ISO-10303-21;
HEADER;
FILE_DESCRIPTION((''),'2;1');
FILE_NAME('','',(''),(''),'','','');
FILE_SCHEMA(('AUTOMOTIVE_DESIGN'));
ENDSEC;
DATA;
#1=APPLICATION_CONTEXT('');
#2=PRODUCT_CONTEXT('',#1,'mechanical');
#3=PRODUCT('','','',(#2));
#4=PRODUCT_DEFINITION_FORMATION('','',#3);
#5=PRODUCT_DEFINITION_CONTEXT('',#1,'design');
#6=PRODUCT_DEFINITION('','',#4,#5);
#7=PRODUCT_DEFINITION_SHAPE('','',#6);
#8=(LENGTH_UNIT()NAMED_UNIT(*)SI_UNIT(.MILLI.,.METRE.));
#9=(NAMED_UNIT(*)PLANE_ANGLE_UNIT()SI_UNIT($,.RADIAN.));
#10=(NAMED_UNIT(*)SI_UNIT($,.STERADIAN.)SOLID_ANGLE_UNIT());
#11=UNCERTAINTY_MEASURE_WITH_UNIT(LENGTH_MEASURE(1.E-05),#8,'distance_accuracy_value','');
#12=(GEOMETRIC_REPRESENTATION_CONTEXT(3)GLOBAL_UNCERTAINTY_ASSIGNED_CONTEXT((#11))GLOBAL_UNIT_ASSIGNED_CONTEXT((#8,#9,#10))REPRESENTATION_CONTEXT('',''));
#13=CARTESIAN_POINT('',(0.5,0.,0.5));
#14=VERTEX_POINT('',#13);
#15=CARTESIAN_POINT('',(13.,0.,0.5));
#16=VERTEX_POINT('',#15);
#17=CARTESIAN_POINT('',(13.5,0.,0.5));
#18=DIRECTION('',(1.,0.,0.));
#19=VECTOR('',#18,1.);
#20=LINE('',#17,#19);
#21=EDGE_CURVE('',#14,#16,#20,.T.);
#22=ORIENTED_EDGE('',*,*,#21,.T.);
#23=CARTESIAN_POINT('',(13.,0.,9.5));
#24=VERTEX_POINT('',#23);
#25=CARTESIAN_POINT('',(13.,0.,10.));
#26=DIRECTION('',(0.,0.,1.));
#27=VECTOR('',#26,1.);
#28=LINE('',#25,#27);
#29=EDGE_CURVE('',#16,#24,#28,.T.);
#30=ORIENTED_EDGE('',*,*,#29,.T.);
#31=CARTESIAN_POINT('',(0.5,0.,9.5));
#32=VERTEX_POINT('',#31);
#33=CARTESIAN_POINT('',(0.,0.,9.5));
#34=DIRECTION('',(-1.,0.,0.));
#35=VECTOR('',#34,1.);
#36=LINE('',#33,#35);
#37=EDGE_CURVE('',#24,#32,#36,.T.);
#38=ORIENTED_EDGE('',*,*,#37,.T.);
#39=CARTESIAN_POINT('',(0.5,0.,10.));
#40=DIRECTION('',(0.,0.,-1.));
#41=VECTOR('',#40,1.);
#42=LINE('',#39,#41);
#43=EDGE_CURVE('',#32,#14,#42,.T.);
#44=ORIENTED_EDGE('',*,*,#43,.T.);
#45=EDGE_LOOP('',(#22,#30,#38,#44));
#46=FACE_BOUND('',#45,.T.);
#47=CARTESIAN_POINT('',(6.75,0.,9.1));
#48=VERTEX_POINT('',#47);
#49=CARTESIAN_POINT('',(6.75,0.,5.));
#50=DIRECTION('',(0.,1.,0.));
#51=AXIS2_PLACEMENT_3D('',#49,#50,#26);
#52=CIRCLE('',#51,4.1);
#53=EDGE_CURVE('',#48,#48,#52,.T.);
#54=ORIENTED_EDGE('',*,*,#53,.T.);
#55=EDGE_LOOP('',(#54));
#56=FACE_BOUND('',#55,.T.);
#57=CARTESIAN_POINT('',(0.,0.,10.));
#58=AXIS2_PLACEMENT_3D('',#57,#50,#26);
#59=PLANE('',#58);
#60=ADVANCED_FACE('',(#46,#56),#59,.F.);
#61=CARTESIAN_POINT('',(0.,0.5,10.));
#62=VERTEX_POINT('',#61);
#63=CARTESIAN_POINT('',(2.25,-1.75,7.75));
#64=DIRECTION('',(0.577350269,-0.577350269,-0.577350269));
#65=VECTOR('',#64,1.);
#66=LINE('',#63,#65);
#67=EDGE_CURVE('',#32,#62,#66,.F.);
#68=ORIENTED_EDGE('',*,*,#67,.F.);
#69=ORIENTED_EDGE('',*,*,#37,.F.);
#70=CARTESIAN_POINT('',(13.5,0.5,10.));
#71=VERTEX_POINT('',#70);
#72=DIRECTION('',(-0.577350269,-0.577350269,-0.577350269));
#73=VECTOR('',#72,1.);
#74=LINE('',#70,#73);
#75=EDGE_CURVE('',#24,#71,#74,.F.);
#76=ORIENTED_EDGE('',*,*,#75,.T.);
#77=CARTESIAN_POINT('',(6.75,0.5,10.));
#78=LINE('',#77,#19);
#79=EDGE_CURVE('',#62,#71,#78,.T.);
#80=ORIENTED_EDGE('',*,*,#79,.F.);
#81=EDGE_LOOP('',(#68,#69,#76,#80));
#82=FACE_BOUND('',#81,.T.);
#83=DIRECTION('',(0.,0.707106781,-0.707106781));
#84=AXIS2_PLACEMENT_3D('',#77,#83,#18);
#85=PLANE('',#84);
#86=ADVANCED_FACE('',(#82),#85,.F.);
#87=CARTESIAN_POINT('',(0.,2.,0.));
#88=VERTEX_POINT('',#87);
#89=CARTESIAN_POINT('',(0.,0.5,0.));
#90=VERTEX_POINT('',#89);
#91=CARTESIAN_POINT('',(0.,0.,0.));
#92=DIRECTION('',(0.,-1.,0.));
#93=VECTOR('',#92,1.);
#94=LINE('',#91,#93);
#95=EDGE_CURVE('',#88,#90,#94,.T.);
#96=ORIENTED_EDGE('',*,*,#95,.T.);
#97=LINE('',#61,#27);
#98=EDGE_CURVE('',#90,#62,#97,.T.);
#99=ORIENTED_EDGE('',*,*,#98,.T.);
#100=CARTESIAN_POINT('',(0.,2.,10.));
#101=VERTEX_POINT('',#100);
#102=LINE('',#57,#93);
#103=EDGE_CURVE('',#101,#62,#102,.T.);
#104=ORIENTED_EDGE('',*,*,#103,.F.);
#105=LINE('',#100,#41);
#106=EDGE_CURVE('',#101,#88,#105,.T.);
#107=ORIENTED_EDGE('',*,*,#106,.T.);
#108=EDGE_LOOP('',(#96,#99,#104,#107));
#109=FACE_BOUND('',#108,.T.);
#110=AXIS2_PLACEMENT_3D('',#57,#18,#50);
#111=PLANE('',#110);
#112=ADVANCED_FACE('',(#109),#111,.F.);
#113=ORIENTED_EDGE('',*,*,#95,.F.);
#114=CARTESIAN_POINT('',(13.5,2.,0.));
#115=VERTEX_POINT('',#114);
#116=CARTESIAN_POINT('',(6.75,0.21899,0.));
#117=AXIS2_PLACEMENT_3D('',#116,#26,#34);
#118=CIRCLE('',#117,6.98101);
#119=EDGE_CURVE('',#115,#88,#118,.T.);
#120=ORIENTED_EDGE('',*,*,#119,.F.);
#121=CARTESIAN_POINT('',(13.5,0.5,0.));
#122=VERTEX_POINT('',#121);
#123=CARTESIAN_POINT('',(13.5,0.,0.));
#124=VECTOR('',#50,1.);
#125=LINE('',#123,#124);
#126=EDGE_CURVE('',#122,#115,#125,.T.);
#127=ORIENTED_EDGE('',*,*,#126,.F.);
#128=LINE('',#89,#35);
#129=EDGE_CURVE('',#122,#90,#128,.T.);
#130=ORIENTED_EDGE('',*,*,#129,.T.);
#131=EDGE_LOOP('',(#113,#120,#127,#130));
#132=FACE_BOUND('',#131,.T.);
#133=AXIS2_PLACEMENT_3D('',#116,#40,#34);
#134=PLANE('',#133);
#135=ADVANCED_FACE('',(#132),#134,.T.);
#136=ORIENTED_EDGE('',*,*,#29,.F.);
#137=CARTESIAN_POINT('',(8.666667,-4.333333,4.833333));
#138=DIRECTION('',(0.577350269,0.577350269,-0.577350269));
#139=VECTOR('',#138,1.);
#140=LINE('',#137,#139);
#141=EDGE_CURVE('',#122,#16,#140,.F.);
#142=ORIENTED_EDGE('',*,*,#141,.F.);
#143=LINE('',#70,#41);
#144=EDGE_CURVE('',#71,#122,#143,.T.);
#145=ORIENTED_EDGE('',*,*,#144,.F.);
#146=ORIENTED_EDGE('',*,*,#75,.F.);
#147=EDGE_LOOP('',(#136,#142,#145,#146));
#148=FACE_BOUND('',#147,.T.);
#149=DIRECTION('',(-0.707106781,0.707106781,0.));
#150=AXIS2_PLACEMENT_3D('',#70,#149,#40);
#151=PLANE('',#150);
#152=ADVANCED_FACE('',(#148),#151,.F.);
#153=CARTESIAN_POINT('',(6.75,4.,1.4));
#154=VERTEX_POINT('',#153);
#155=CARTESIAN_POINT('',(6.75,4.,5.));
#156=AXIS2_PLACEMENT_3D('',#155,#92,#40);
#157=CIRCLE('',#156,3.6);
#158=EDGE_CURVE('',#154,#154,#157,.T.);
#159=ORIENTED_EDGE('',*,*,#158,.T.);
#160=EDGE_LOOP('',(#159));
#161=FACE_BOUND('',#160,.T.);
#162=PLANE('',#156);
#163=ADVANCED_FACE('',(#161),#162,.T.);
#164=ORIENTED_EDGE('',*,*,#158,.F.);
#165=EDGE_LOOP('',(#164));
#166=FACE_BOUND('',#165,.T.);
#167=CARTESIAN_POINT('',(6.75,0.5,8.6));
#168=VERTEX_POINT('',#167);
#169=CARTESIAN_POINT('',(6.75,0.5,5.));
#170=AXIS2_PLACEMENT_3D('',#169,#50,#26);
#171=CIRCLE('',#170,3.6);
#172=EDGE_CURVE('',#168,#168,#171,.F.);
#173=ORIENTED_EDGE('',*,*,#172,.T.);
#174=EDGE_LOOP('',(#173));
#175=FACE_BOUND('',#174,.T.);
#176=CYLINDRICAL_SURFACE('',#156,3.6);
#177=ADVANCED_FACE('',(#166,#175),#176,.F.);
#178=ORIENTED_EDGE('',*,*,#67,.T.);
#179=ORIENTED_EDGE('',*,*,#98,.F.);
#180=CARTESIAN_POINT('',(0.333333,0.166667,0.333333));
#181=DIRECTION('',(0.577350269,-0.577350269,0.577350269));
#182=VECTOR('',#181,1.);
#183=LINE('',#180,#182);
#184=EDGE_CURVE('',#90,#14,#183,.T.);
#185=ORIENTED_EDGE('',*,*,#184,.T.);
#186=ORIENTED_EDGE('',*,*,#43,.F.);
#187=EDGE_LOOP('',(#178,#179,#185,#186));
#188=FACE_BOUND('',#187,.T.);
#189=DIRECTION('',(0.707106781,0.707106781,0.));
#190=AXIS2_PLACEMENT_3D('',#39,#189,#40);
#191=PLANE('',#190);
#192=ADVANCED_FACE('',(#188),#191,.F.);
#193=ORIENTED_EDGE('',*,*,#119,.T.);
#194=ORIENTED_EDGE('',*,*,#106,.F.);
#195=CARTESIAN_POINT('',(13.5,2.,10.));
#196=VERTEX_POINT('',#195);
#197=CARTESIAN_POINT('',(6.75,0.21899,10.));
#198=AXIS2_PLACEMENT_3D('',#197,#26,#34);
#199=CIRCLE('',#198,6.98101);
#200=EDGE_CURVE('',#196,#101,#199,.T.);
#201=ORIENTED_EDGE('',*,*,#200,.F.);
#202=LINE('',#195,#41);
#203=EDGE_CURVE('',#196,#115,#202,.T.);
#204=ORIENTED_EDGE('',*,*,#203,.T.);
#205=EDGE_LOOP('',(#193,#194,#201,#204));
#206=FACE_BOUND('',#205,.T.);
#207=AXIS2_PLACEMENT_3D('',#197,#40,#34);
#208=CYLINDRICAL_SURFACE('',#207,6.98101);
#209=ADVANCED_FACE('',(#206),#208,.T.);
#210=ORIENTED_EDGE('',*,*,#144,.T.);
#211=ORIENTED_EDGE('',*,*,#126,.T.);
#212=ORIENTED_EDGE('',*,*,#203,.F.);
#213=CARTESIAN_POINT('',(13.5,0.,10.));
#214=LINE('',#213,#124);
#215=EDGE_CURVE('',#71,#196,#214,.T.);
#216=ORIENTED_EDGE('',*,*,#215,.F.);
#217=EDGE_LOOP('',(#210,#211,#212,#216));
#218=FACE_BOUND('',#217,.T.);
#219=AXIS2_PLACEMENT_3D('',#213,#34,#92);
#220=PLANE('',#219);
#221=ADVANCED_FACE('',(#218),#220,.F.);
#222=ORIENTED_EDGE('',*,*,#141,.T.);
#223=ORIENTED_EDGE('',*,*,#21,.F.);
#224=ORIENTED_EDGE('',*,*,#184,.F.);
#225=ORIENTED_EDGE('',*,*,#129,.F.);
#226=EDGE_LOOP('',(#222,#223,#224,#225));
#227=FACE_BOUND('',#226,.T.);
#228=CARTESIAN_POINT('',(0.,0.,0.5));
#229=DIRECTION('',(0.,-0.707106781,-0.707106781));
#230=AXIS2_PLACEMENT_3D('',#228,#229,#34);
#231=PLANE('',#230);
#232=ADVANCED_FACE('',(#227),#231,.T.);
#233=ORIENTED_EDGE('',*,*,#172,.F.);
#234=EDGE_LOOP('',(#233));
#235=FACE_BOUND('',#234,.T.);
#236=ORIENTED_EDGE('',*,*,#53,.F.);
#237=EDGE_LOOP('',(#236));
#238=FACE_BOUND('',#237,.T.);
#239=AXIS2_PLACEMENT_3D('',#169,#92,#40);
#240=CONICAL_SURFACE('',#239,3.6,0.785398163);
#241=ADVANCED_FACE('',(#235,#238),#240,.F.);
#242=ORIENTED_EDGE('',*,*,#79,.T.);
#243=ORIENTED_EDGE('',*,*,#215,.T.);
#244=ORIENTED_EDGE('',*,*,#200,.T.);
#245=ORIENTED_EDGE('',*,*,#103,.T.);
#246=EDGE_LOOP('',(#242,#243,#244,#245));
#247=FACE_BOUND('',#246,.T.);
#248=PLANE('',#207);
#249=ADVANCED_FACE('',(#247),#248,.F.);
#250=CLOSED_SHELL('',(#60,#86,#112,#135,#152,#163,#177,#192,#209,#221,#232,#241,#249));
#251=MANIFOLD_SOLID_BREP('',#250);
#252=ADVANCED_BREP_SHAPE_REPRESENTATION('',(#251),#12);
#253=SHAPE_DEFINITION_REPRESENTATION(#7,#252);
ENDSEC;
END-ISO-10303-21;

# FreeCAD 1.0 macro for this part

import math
import FreeCAD as App
import Part
import Sketcher

V = App.Vector
Q = App.Units.Quantity


def edges_at(feature, points):
    """Names of the edges that pass closest to the given points."""
    edges = feature.Shape.Edges
    near = lambda p: min(range(len(edges)), key=lambda i: edges[i].distToShape(Part.Vertex(*p))[0])
    return sorted({f"Edge{near(p) + 1}" for p in points})

doc = App.newDocument("Part")
body = doc.addObject("PartDesign::Body", "Body")

# Sketch on XY plane
sketch1 = body.newObject("Sketcher::SketchObject", "Sketch")
sketch1.AttachmentSupport = (doc.getObject("XY_Plane"), [""])
sketch1.MapMode = "FlatFace"
sketch1.addGeometry(Part.LineSegment(V(0, 0, 0), V(13.5, 0, 0)), False)
sketch1.addGeometry(Part.LineSegment(V(13.5, 0, 0), V(13.5, 2, 0)), False)
sketch1.addGeometry(Part.ArcOfCircle(Part.Circle(V(6.8, 0.2, 0), V(0, 0, 1), 7), math.radians(15), math.radians(165)), False)
sketch1.addGeometry(Part.LineSegment(V(0, 2, 0), V(0, 0, 0)), False)
sketch1.addConstraint(Sketcher.Constraint("Coincident", 0, 2, 1, 1))
sketch1.addConstraint(Sketcher.Constraint("Coincident", 1, 2, 2, 1))
sketch1.addConstraint(Sketcher.Constraint("Coincident", 2, 2, 3, 1))
sketch1.addConstraint(Sketcher.Constraint("Coincident", 3, 2, 0, 1))
sketch1.addConstraint(Sketcher.Constraint("Horizontal", 0))
sketch1.addConstraint(Sketcher.Constraint("Vertical", 1))
sketch1.addConstraint(Sketcher.Constraint("Vertical", 3))
sketch1.addConstraint(Sketcher.Constraint("Coincident", 3, 2, -1, 1))
sketch1.addConstraint(Sketcher.Constraint("Horizontal", 1, 2, 2, 2))
sketch1.addConstraint(Sketcher.Constraint("DistanceY", 1, 1, 1, 2, Q("2 mm")))
sketch1.addConstraint(Sketcher.Constraint("DistanceX", 0, 1, 0, 2, Q("13.5 mm")))
sketch1.addConstraint(Sketcher.Constraint("Radius", 2, Q("6.98101 mm")))
pad1 = body.newObject("PartDesign::Pad", "Pad")
pad1.Profile = sketch1
pad1.Length = 10

# Sketch on XZ plane
sketch2 = body.newObject("Sketcher::SketchObject", "Sketch001")
sketch2.AttachmentSupport = (doc.getObject("XZ_Plane"), [""])
sketch2.MapMode = "FlatFace"
sketch2.addGeometry(Part.Circle(V(6.8, 5, 0), V(0, 0, 1), 3.6), False)
sketch2.addConstraint(Sketcher.Constraint("Diameter", 0, Q("7.2 mm")))
sketch2.addConstraint(Sketcher.Constraint("DistanceY", -1, 1, 0, 3, Q("5 mm")))
sketch2.addConstraint(Sketcher.Constraint("DistanceX", -1, 1, 0, 3, Q("6.75 mm")))
pocket1 = body.newObject("PartDesign::Pocket", "Pocket")
pocket1.Profile = sketch2
pocket1.Length = 4
doc.recompute()

chamfer = body.newObject("PartDesign::Chamfer", "Chamfer")
chamfer.Base = (pocket1, edges_at(pocket1, [
    (6.75, 0, 8.6),
    (6.75, 0, 0),
    (6.75, 0, 10),
    (13.5, 0, 5),
    (0, 0, 5),
]))
chamfer.Size = 0.5

doc.recompute()
